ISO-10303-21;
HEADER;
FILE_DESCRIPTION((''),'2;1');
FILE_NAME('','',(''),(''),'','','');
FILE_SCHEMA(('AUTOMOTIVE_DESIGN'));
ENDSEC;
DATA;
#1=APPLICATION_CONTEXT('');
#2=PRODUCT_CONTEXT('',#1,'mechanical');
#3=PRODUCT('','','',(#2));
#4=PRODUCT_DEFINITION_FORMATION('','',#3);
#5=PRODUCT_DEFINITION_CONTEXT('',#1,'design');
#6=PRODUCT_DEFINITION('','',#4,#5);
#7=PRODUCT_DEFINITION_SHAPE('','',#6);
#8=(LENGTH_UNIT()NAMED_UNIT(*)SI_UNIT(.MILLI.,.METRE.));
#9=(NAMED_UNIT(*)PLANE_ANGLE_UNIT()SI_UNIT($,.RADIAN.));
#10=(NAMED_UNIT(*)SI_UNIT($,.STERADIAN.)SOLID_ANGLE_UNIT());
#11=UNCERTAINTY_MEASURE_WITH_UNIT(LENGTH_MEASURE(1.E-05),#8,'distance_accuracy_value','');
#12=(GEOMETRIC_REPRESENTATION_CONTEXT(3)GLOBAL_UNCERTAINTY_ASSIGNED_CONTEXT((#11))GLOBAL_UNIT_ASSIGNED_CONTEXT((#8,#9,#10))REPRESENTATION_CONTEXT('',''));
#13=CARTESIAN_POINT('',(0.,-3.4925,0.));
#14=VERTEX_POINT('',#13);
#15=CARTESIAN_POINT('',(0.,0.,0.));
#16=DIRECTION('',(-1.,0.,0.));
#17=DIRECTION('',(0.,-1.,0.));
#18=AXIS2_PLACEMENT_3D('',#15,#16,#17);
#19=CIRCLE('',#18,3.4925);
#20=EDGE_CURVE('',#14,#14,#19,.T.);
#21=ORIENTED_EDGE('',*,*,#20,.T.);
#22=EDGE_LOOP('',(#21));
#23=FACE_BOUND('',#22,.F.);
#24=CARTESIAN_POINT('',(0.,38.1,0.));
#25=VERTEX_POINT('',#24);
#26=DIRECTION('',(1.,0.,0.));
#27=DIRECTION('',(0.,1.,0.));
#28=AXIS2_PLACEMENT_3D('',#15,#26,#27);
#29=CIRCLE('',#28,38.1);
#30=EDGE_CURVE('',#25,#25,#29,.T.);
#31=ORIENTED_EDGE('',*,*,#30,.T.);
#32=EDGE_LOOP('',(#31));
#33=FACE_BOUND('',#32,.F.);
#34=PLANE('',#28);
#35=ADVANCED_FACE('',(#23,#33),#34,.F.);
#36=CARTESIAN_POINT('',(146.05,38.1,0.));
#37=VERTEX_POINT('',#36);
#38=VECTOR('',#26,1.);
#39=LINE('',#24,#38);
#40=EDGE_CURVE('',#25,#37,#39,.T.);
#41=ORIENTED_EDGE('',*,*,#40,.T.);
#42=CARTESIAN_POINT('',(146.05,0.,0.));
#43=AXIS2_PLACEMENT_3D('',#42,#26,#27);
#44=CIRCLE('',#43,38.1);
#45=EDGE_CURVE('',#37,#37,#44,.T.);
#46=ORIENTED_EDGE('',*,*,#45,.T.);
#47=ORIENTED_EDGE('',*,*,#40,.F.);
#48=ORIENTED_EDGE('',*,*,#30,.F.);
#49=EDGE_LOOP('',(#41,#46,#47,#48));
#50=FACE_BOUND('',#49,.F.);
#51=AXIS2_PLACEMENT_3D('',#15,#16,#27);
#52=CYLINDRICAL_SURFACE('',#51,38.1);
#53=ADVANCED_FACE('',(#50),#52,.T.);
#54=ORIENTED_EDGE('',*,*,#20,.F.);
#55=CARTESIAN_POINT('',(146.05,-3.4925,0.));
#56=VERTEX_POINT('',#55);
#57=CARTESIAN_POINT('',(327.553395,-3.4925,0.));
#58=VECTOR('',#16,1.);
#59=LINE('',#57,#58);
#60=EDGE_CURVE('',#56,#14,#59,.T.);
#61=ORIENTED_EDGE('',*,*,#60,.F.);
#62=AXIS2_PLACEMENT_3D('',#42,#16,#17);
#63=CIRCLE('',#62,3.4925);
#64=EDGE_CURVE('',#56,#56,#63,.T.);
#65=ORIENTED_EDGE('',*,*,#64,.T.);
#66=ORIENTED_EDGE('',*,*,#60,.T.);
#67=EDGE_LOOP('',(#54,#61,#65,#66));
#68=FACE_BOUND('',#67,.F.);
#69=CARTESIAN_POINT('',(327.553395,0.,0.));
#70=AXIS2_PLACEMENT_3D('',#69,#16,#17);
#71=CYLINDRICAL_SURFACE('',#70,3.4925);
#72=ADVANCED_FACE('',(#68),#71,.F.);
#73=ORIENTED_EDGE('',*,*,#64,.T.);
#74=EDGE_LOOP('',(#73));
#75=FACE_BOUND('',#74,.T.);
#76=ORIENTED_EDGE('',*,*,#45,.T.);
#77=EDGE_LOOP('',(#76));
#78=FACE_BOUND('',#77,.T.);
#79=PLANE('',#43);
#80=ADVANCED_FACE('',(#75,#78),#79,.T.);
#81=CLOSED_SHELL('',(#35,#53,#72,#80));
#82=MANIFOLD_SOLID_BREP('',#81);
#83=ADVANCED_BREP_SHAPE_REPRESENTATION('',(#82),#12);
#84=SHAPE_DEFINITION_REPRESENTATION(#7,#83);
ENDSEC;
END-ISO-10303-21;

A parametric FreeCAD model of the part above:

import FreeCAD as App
import Part
import Sketcher
Q = App.Units.Quantity

doc = App.newDocument("Part")
body = doc.addObject("PartDesign::Body", "Body")

# Sketch on YZ plane
sketch1 = doc.addObject("Sketcher::SketchObject", "Sketch")
body.addObject(sketch1)
sketch1.AttachmentSupport = (doc.YZ_Plane, [""])
sketch1.MapMode = "FlatFace"
sketch1.addGeometry(Part.Circle(App.Vector(0, 0, 0), App.Vector(0, 0, 1), 38), False)
sketch1.addConstraint(Sketcher.Constraint("Coincident", 0, 3, -1, 1))
sketch1.addConstraint(Sketcher.Constraint("Diameter", 0, Q("3 in")))
pad1 = doc.addObject("PartDesign::Pad", "Pad")
body.addObject(pad1)
pad1.Profile = sketch1
pad1.Length = Q("5.75 in")

# Sketch on YZ plane
sketch2 = doc.addObject("Sketcher::SketchObject", "Sketch001")
body.addObject(sketch2)
sketch2.AttachmentSupport = (doc.YZ_Plane, [""])
sketch2.MapMode = "FlatFace"
sketch2.AttachmentOffset = App.Placement(App.Vector(0, 0, 5.75 * 25.4), App.Rotation())
sketch2.addGeometry(Part.Circle(App.Vector(0, 0, 0), App.Vector(0, 0, 1), 3.5), False)
sketch2.addConstraint(Sketcher.Constraint("Coincident", 0, 3, -1, 1))
sketch2.addConstraint(Sketcher.Constraint("Diameter", 0, Q("0.275 in")))
doc.recompute()
hole = doc.addObject("PartDesign::Hole", "Hole")
body.addObject(hole)
hole.Profile = sketch2
hole.ThreadType = "None"
hole.Diameter = Q("0.275 in")
hole.DepthType = "ThroughAll"

doc.recompute()
